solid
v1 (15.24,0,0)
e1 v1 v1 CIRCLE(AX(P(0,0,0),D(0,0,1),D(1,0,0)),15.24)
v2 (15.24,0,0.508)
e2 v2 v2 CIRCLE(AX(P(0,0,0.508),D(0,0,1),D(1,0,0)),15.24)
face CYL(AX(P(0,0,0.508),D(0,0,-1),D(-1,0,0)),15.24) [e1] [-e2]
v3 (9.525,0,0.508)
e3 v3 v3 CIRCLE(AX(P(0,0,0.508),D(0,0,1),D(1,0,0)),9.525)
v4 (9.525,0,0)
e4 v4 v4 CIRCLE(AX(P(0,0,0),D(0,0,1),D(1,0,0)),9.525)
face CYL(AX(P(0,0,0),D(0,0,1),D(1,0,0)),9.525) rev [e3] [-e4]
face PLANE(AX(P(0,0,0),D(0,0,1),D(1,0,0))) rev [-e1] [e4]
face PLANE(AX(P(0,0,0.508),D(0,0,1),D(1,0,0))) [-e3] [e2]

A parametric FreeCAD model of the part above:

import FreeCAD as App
import Part
import Sketcher
Q = App.Units.Quantity

doc = App.newDocument("Part")
params = doc.addObject("Spreadsheet::Sheet", "Params")
for row, (alias, value) in enumerate([
    ("sketch1_diameter", "1.2 in"),
    ("pad1_length", "0.02 in"),
    ("sketch2_diameter", "0.75 in"),
], start=1):
    params.set(f"A{row}", alias)
    params.set(f"B{row}", "=" + value)
    params.setAlias(f"B{row}", alias)

body = doc.addObject("PartDesign::Body", "Body")

sketch1 = doc.addObject("Sketcher::SketchObject", "Sketch")
body.addObject(sketch1)
sketch1.AttachmentSupport = (doc.XY_Plane, [""])
sketch1.MapMode = "FlatFace"
sketch1.addGeometry(Part.Circle(App.Vector(0, 0, 0), App.Vector(0, 0, 1), 15), False)
sketch1.addConstraint([
    Sketcher.Constraint("Coincident", 0, 3, -1, 1),
    Sketcher.Constraint("Diameter", 0, Q("1.2 in")),
])
sketch1.setExpression("Constraints[1]", "Params.sketch1_diameter")
pad1 = doc.addObject("PartDesign::Pad", "Pad")
body.addObject(pad1)
pad1.Profile = sketch1
pad1.setExpression("Length", "Params.pad1_length")

sketch2 = doc.addObject("Sketcher::SketchObject", "Sketch001")
body.addObject(sketch2)
sketch2.AttachmentSupport = (doc.XY_Plane, [""])
sketch2.MapMode = "FlatFace"
sketch2.AttachmentOffset = App.Placement(App.Vector(0, 0, 0.02 * 25.4), App.Rotation())
sketch2.addGeometry(Part.Circle(App.Vector(0, 0, 0), App.Vector(0, 0, 1), 10), False)
sketch2.addConstraint([
    Sketcher.Constraint("Coincident", 0, 3, -1, 1),
    Sketcher.Constraint("Diameter", 0, Q("0.75 in")),
])
sketch2.setExpression("Constraints[1]", "Params.sketch2_diameter")
pocket1 = doc.addObject("PartDesign::Pocket", "Pocket")
body.addObject(pocket1)
pocket1.Profile = sketch2
pocket1.Type = "ThroughAll"

doc.recompute()
